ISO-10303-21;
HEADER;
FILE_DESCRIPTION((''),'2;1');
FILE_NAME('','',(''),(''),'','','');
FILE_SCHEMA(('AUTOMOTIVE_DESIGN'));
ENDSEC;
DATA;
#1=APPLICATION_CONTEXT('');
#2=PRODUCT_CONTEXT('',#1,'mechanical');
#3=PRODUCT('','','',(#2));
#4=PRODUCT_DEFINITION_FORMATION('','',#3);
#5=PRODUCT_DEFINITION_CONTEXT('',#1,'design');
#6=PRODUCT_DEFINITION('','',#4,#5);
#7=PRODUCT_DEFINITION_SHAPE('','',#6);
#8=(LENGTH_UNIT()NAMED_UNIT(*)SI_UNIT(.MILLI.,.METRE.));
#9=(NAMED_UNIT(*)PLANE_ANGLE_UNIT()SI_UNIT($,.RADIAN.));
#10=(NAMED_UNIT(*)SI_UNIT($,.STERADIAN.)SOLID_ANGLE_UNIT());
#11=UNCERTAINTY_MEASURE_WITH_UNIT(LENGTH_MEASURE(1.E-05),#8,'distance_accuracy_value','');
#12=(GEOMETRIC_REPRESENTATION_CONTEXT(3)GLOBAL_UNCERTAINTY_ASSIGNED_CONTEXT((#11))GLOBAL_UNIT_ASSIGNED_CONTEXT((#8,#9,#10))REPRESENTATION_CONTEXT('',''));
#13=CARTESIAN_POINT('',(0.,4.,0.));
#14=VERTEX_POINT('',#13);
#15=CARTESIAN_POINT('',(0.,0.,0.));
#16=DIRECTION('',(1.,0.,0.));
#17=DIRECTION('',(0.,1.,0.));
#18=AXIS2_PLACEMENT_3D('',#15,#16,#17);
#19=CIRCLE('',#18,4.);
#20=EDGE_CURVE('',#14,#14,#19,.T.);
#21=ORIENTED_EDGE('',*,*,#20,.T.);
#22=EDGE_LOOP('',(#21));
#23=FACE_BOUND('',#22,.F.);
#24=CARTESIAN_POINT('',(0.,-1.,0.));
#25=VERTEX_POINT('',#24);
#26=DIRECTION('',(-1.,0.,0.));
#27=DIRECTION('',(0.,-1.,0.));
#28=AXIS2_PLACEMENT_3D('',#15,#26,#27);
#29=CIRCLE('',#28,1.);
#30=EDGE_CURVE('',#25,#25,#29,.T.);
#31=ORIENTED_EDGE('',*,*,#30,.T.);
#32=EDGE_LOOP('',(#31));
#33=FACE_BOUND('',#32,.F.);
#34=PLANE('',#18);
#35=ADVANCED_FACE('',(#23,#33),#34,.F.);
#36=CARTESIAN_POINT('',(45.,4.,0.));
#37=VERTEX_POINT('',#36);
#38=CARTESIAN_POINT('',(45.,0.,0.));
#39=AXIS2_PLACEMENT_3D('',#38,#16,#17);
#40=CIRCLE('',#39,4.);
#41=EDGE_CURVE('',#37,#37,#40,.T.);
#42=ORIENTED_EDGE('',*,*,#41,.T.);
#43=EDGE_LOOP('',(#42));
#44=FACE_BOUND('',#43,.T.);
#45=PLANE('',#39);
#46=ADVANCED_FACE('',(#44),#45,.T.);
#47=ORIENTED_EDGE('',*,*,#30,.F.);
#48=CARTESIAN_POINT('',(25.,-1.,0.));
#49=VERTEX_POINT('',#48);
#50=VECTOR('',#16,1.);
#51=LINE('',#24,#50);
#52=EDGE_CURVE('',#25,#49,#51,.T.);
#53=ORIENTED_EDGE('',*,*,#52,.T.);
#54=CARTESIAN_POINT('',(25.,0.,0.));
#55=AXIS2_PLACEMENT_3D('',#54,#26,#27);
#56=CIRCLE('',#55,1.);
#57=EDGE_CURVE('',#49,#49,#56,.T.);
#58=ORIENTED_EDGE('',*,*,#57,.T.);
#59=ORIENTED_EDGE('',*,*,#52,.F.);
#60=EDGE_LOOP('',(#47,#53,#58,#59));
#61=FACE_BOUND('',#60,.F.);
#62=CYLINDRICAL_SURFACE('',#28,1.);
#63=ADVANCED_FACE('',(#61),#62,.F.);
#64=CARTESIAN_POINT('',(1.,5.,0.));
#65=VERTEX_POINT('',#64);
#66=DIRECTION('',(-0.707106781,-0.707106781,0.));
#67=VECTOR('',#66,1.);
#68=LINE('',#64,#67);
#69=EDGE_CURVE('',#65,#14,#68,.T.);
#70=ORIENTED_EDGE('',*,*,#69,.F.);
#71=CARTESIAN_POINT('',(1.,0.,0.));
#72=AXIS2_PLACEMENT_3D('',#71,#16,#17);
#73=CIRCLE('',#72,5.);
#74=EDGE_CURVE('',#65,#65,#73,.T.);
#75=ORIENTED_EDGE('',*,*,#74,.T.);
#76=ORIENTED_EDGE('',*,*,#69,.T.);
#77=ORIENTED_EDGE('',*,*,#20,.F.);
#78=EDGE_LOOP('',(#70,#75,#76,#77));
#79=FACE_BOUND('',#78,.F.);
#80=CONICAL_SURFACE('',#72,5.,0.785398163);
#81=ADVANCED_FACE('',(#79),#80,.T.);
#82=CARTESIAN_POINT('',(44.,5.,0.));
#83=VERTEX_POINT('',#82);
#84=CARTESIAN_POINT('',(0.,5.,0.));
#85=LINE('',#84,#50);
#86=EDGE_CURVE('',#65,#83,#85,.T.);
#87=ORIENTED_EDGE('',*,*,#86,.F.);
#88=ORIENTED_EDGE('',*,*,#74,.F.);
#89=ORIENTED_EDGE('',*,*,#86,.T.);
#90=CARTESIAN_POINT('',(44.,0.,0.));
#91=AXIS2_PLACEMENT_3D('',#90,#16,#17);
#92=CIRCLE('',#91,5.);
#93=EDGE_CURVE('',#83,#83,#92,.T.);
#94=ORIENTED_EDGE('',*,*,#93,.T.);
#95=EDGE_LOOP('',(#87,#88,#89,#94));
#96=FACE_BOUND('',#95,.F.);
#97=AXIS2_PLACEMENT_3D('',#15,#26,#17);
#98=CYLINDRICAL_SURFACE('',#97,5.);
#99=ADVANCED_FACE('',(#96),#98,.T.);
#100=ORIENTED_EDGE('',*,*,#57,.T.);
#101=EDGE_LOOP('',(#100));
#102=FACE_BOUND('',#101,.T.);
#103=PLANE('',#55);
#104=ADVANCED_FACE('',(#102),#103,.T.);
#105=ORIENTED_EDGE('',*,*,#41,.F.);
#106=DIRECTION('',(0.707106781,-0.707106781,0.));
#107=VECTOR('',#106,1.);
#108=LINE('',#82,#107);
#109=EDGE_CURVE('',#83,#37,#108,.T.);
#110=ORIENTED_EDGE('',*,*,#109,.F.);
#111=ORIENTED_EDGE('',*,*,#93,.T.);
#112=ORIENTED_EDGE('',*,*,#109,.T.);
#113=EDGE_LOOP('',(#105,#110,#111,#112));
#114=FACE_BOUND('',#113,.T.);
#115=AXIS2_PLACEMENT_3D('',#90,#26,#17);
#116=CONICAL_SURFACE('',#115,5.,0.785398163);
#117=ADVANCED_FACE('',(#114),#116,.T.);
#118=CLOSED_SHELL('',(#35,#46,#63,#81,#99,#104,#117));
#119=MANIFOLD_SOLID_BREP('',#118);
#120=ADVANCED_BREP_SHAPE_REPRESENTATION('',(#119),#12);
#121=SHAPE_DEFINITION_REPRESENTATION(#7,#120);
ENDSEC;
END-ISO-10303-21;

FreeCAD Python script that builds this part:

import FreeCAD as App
import Part
import Sketcher

V = App.Vector


def edges_at(feature, points):
    """Names of the edges that pass closest to the given points."""
    edges = feature.Shape.Edges
    near = lambda p: min(range(len(edges)), key=lambda i: edges[i].distToShape(Part.Vertex(*p))[0])
    return sorted({f"Edge{near(p) + 1}" for p in points})

doc = App.newDocument("Part")
body = doc.addObject("PartDesign::Body", "Body")

sketch1 = body.newObject("Sketcher::SketchObject", "Sketch")
sketch1.AttachmentSupport = (doc.getObject("YZ_Plane"), [""])
sketch1.MapMode = "FlatFace"
sketch1.addGeometry(Part.Circle(V(0, 0, 0), V(0, 0, 1), 5), False)
sketch1.addConstraint(Sketcher.Constraint("Coincident", 0, 3, -1, 1))
sketch1.addConstraint(Sketcher.Constraint("Diameter", 0, 10.0))
pad1 = body.newObject("PartDesign::Pad", "Pad")
pad1.Profile = sketch1
pad1.Length = 45

sketch2 = body.newObject("Sketcher::SketchObject", "Sketch001")
sketch2.AttachmentSupport = (doc.getObject("YZ_Plane"), [""])
sketch2.MapMode = "FlatFace"
sketch2.addGeometry(Part.Circle(V(0, 0, 0), V(0, 0, 1), 1), False)
sketch2.addConstraint(Sketcher.Constraint("Coincident", 0, 3, -1, 1))
sketch2.addConstraint(Sketcher.Constraint("Diameter", 0, 2.0))
pocket1 = body.newObject("PartDesign::Pocket", "Pocket")
pocket1.Profile = sketch2
pocket1.Length = 25
pocket1.Reversed = True
doc.recompute()

chamfer = body.newObject("PartDesign::Chamfer", "Chamfer")
chamfer.Base = (pocket1, edges_at(pocket1, [(0, -5, 0), (45, -5, 0)]))
chamfer.Size = 1

doc.recompute()
